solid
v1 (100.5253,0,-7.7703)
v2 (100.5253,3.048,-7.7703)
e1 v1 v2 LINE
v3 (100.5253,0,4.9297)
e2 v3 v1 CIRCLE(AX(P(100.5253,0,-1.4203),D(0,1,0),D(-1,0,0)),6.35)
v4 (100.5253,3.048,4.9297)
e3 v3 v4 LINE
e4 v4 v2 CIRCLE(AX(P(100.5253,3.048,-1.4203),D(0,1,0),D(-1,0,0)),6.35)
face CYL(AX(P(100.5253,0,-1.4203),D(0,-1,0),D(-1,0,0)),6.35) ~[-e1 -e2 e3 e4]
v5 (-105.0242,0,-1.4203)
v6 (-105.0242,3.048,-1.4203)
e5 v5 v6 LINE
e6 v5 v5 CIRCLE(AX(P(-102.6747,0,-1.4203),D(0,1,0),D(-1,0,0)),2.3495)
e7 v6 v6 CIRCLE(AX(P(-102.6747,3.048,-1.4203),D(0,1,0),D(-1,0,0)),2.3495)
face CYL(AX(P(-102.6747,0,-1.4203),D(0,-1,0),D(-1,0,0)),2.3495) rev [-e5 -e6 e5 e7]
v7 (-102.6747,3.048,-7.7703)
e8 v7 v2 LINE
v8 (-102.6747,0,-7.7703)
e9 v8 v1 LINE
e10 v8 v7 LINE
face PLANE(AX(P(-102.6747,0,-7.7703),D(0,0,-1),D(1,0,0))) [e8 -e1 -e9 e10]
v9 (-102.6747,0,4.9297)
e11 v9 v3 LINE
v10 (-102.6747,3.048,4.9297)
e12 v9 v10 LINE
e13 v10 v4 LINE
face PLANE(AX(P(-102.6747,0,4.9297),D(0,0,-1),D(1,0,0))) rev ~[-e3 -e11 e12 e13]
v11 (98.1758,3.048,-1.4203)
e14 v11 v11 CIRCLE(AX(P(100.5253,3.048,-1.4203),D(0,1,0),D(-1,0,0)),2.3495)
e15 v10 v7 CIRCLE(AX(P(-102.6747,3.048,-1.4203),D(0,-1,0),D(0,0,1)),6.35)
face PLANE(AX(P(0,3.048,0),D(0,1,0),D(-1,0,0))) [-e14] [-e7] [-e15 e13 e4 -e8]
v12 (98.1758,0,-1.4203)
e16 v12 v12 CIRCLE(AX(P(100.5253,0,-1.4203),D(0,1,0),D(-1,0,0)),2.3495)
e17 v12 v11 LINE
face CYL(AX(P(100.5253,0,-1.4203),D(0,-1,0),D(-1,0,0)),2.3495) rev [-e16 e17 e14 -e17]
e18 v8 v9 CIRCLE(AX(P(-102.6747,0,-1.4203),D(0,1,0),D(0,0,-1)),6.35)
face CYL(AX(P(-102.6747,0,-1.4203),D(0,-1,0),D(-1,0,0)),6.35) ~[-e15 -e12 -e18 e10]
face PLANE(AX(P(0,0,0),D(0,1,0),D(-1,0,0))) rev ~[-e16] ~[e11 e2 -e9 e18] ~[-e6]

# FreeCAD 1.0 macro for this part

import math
import FreeCAD as App
import Part
import Sketcher

V = App.Vector
Q = App.Units.Quantity

doc = App.newDocument("Part")
body = doc.addObject("PartDesign::Body", "Body")

# Sketch on XZ plane
sketch1 = body.newObject("Sketcher::SketchObject", "Sketch")
sketch1.AttachmentSupport = (doc.getObject("XZ_Plane"), [""])
sketch1.MapMode = "FlatFace"
sketch1.addGeometry(Part.ArcOfCircle(Part.Circle(V(-102.7, -1.4, 0), V(0, 0, 1), 6.3), math.radians(90), math.radians(270)), False)
sketch1.addGeometry(Part.LineSegment(V(-102.7, 4.9, 0), V(100.5, 4.9, 0)), False)
sketch1.addGeometry(Part.ArcOfCircle(Part.Circle(V(100.5, -1.4, 0), V(0, 0, 1), 6.3), math.radians(-90), math.radians(90)), False)
sketch1.addGeometry(Part.LineSegment(V(100.5, -7.8, 0), V(-102.7, -7.8, 0)), False)
sketch1.addGeometry(Part.Circle(V(-102.7, -1.4, 0), V(0, 0, 1), 2.3), False)
sketch1.addGeometry(Part.Circle(V(100.5, -1.4, 0), V(0, 0, 1), 2.3), False)
sketch1.addConstraint(Sketcher.Constraint("Tangent", 0, 1, 1, 1))
sketch1.addConstraint(Sketcher.Constraint("Tangent", 1, 2, 2, 2))
sketch1.addConstraint(Sketcher.Constraint("Tangent", 2, 1, 3, 1))
sketch1.addConstraint(Sketcher.Constraint("Tangent", 3, 2, 0, 2))
sketch1.addConstraint(Sketcher.Constraint("Horizontal", 1))
sketch1.addConstraint(Sketcher.Constraint("Horizontal", 3))
sketch1.addConstraint(Sketcher.Constraint("Coincident", 4, 3, 0, 3))
sketch1.addConstraint(Sketcher.Constraint("Coincident", 5, 3, 2, 3))
sketch1.addConstraint(Sketcher.Constraint("Equal", 4, 5))
sketch1.addConstraint(Sketcher.Constraint("Radius", 0, Q("0.25 in")))
sketch1.addConstraint(Sketcher.Constraint("Diameter", 4, Q("0.185 in")))
sketch1.addConstraint(Sketcher.Constraint("DistanceX", 1, 1, 1, 2, Q("8 in")))
sketch1.addConstraint(Sketcher.Constraint("DistanceX", 0, 3, -1, 1, Q("4.0423 in")))
sketch1.addConstraint(Sketcher.Constraint("DistanceY", 0, 3, -1, 1, Q("1.4203 mm")))
pad1 = body.newObject("PartDesign::Pad", "Pad")
pad1.Profile = sketch1
pad1.Length = Q("0.12 in")
pad1.Reversed = True

doc.recompute()
